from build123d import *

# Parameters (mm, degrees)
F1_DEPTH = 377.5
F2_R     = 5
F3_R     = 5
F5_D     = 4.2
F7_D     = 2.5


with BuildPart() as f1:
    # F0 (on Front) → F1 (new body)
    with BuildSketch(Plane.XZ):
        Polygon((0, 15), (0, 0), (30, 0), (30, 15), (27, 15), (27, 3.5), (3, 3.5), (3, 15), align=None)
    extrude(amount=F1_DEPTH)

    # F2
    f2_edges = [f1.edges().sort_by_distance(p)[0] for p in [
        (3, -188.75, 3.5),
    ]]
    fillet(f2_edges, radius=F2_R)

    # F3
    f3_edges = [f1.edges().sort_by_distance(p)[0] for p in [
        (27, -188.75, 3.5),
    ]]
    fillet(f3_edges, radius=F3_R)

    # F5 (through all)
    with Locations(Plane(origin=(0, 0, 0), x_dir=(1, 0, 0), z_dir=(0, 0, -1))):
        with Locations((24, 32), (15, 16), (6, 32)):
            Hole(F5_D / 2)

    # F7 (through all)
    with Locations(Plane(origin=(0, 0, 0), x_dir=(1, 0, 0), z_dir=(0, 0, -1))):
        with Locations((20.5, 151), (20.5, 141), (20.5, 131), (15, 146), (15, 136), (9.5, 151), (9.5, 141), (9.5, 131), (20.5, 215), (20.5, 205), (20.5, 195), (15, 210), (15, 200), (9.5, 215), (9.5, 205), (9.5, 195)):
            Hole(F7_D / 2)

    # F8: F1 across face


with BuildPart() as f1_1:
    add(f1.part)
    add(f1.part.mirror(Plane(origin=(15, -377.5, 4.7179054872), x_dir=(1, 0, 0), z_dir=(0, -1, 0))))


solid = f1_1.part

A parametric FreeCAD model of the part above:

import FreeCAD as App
import Part
import Sketcher
from FreeCAD import Vector


def edges_at(feature, points):
    """Names of the edges that pass closest to the given points."""
    edges = feature.Shape.Edges
    near = lambda p: min(range(len(edges)), key=lambda i: edges[i].distToShape(Part.Vertex(*p))[0])
    return sorted({f"Edge{near(p) + 1}" for p in points})


def add_polygon(sketch, points):
    """Adds a closed chain of lines whose ends are joined by coincident constraints."""
    first, n = sketch.GeometryCount, len(points)
    for a, b in zip(points, points[1:] + points[:1]):
        sketch.addGeometry(Part.LineSegment(App.Vector(*a, 0), App.Vector(*b, 0)), False)
    for i in range(n):
        sketch.addConstraint(Sketcher.Constraint("Coincident", first + i, 2, first + (i + 1) % n, 1))

doc = App.newDocument("Part")
body = doc.addObject("PartDesign::Body", "Body")

# Sketch on XZ plane
sketch1 = body.newObject("Sketcher::SketchObject", "Sketch")
sketch1.AttachmentSupport = (doc.getObject("XZ_Plane"), [""])
sketch1.MapMode = "FlatFace"
add_polygon(sketch1, [(0, 15), (0, 0), (30, 0), (30, 15), (27, 15), (27, 3.5), (3, 3.5), (3, 15)])  # lines 0-7
sketch1.addConstraint(Sketcher.Constraint("Vertical", 0))
sketch1.addConstraint(Sketcher.Constraint("Horizontal", 1))
sketch1.addConstraint(Sketcher.Constraint("Vertical", 2))
sketch1.addConstraint(Sketcher.Constraint("Horizontal", 3))
sketch1.addConstraint(Sketcher.Constraint("Vertical", 4))
sketch1.addConstraint(Sketcher.Constraint("Horizontal", 5))
sketch1.addConstraint(Sketcher.Constraint("Vertical", 6))
sketch1.addConstraint(Sketcher.Constraint("Horizontal", 7))
sketch1.addConstraint(Sketcher.Constraint("Coincident", 0, 2, -1, 1))
sketch1.addConstraint(Sketcher.Constraint("Horizontal", 3, 2, 6, 2))
sketch1.addConstraint(Sketcher.Constraint("Equal", 3, 7))
sketch1.addConstraint(Sketcher.Constraint("DistanceX", 1, 1, 1, 2, 30.0))
sketch1.addConstraint(Sketcher.Constraint("DistanceX", 3, 2, 3, 1, 3.0))
sketch1.addConstraint(Sketcher.Constraint("DistanceY", 0, 2, 0, 1, 15.0))
sketch1.addConstraint(Sketcher.Constraint("DistanceY", 4, 2, 4, 1, 11.5))
pad1 = body.newObject("PartDesign::Pad", "Pad")
pad1.Profile = sketch1
pad1.Length = 377.5
doc.recompute()

fillet = body.newObject("PartDesign::Fillet", "Fillet")
fillet.Base = (pad1, edges_at(pad1, [(3, -188.75, 3.5)]))
fillet.Radius = 5
doc.recompute()

fillet2 = body.newObject("PartDesign::Fillet", "Fillet001")
fillet2.Base = (fillet, edges_at(fillet, [(27, -188.75, 3.5)]))
fillet2.Radius = 5

# Sketch on XY plane
sketch2 = body.newObject("Sketcher::SketchObject", "Sketch001")
sketch2.AttachmentSupport = (doc.getObject("XY_Plane"), [""])
sketch2.MapMode = "FlatFace"
sketch2.addGeometry(Part.Circle(Vector(24, -32, 0), Vector(0, 0, 1), 2.1), False)
sketch2.addGeometry(Part.Circle(Vector(15, -16, 0), Vector(0, 0, 1), 2.1), False)
sketch2.addGeometry(Part.Circle(Vector(6, -32, 0), Vector(0, 0, 1), 2.1), False)
sketch2.addConstraint(Sketcher.Constraint("Equal", 0, 1))
sketch2.addConstraint(Sketcher.Constraint("Equal", 1, 2))
sketch2.addConstraint(Sketcher.Constraint("Horizontal", 0, 3, 2, 3))
sketch2.addConstraint(Sketcher.Constraint("Diameter", 0, 4.2))
sketch2.addConstraint(Sketcher.Constraint("DistanceX", -1, 1, 0, 3, 24.0))
sketch2.addConstraint(Sketcher.Constraint("DistanceY", 0, 3, -1, 1, 32.0))
sketch2.addConstraint(Sketcher.Constraint("DistanceX", -1, 1, 1, 3, 15.0))
sketch2.addConstraint(Sketcher.Constraint("DistanceY", 1, 3, -1, 1, 16.0))
sketch2.addConstraint(Sketcher.Constraint("DistanceX", -1, 1, 2, 3, 6.0))
doc.recompute()
hole = body.newObject("PartDesign::Hole", "Hole")
hole.Profile = sketch2
hole.ThreadType = "None"
hole.Diameter = 4.2
hole.DepthType = "ThroughAll"
hole.Reversed = True

# Sketch on XY plane
sketch3 = body.newObject("Sketcher::SketchObject", "Sketch002")
sketch3.AttachmentSupport = (doc.getObject("XY_Plane"), [""])
sketch3.MapMode = "FlatFace"
sketch3.addGeometry(Part.Circle(Vector(20.5, -151, 0), Vector(0, 0, 1), 1.2), False)
sketch3.addGeometry(Part.Circle(Vector(20.5, -141, 0), Vector(0, 0, 1), 1.2), False)
sketch3.addGeometry(Part.Circle(Vector(20.5, -131, 0), Vector(0, 0, 1), 1.2), False)
sketch3.addGeometry(Part.Circle(Vector(15, -146, 0), Vector(0, 0, 1), 1.2), False)
sketch3.addGeometry(Part.Circle(Vector(15, -136, 0), Vector(0, 0, 1), 1.2), False)
sketch3.addGeometry(Part.Circle(Vector(9.5, -151, 0), Vector(0, 0, 1), 1.2), False)
sketch3.addGeometry(Part.Circle(Vector(9.5, -141, 0), Vector(0, 0, 1), 1.2), False)
sketch3.addGeometry(Part.Circle(Vector(9.5, -131, 0), Vector(0, 0, 1), 1.2), False)
sketch3.addGeometry(Part.Circle(Vector(20.5, -215, 0), Vector(0, 0, 1), 1.2), False)
sketch3.addGeometry(Part.Circle(Vector(20.5, -205, 0), Vector(0, 0, 1), 1.2), False)
sketch3.addGeometry(Part.Circle(Vector(20.5, -195, 0), Vector(0, 0, 1), 1.2), False)
sketch3.addGeometry(Part.Circle(Vector(15, -210, 0), Vector(0, 0, 1), 1.2), False)
sketch3.addGeometry(Part.Circle(Vector(15, -200, 0), Vector(0, 0, 1), 1.2), False)
sketch3.addGeometry(Part.Circle(Vector(9.5, -215, 0), Vector(0, 0, 1), 1.2), False)
sketch3.addGeometry(Part.Circle(Vector(9.5, -205, 0), Vector(0, 0, 1), 1.2), False)
sketch3.addGeometry(Part.Circle(Vector(9.5, -195, 0), Vector(0, 0, 1), 1.2), False)
sketch3.addConstraint(Sketcher.Constraint("Equal", 0, 1))
sketch3.addConstraint(Sketcher.Constraint("Equal", 1, 2))
sketch3.addConstraint(Sketcher.Constraint("Equal", 2, 3))
sketch3.addConstraint(Sketcher.Constraint("Equal", 3, 4))
sketch3.addConstraint(Sketcher.Constraint("Equal", 4, 5))
sketch3.addConstraint(Sketcher.Constraint("Equal", 5, 6))
sketch3.addConstraint(Sketcher.Constraint("Equal", 6, 7))
sketch3.addConstraint(Sketcher.Constraint("Equal", 7, 8))
sketch3.addConstraint(Sketcher.Constraint("Equal", 8, 9))
sketch3.addConstraint(Sketcher.Constraint("Equal", 9, 10))
sketch3.addConstraint(Sketcher.Constraint("Equal", 10, 11))
sketch3.addConstraint(Sketcher.Constraint("Equal", 11, 12))
sketch3.addConstraint(Sketcher.Constraint("Equal", 12, 13))
sketch3.addConstraint(Sketcher.Constraint("Equal", 13, 14))
sketch3.addConstraint(Sketcher.Constraint("Equal", 14, 15))
sketch3.addConstraint(Sketcher.Constraint("Horizontal", 0, 3, 5, 3))
sketch3.addConstraint(Sketcher.Constraint("Horizontal", 1, 3, 6, 3))
sketch3.addConstraint(Sketcher.Constraint("Horizontal", 2, 3, 7, 3))
sketch3.addConstraint(Sketcher.Constraint("Horizontal", 8, 3, 13, 3))
sketch3.addConstraint(Sketcher.Constraint("Horizontal", 9, 3, 14, 3))
sketch3.addConstraint(Sketcher.Constraint("Horizontal", 10, 3, 15, 3))
sketch3.addConstraint(Sketcher.Constraint("Vertical", 0, 3, 1, 3))
sketch3.addConstraint(Sketcher.Constraint("Vertical", 1, 3, 2, 3))
sketch3.addConstraint(Sketcher.Constraint("Vertical", 3, 3, 4, 3))
sketch3.addConstraint(Sketcher.Constraint("Vertical", 5, 3, 6, 3))
sketch3.addConstraint(Sketcher.Constraint("Vertical", 6, 3, 7, 3))
sketch3.addConstraint(Sketcher.Constraint("Vertical", 2, 3, 8, 3))
sketch3.addConstraint(Sketcher.Constraint("Vertical", 8, 3, 9, 3))
sketch3.addConstraint(Sketcher.Constraint("Vertical", 9, 3, 10, 3))
sketch3.addConstraint(Sketcher.Constraint("Vertical", 4, 3, 11, 3))
sketch3.addConstraint(Sketcher.Constraint("Vertical", 11, 3, 12, 3))
sketch3.addConstraint(Sketcher.Constraint("Vertical", 7, 3, 13, 3))
sketch3.addConstraint(Sketcher.Constraint("Vertical", 13, 3, 14, 3))
sketch3.addConstraint(Sketcher.Constraint("Vertical", 14, 3, 15, 3))
sketch3.addConstraint(Sketcher.Constraint("Diameter", 0, 2.5))
sketch3.addConstraint(Sketcher.Constraint("DistanceY", 0, 3, -1, 1, 151.0))
sketch3.addConstraint(Sketcher.Constraint("DistanceY", 1, 3, -1, 1, 141.0))
sketch3.addConstraint(Sketcher.Constraint("DistanceY", 2, 3, -1, 1, 131.0))
sketch3.addConstraint(Sketcher.Constraint("DistanceX", -1, 1, 3, 3, 15.0))
sketch3.addConstraint(Sketcher.Constraint("DistanceY", 3, 3, -1, 1, 146.0))
sketch3.addConstraint(Sketcher.Constraint("DistanceY", 4, 3, -1, 1, 136.0))
sketch3.addConstraint(Sketcher.Constraint("DistanceY", 8, 3, -1, 1, 215.0))
sketch3.addConstraint(Sketcher.Constraint("DistanceY", 9, 3, -1, 1, 205.0))
sketch3.addConstraint(Sketcher.Constraint("DistanceY", 10, 3, -1, 1, 195.0))
sketch3.addConstraint(Sketcher.Constraint("DistanceY", 11, 3, -1, 1, 210.0))
sketch3.addConstraint(Sketcher.Constraint("DistanceY", 12, 3, -1, 1, 200.0))
sketch3.addConstraint(Sketcher.Constraint("DistanceX", 5, 3, 0, 3, 11.0))
sketch3.addConstraint(Sketcher.Constraint("DistanceX", -1, 1, 0, 3, 20.5))
doc.recompute()
hole2 = body.newObject("PartDesign::Hole", "Hole001")
hole2.Profile = sketch3
hole2.ThreadType = "None"
hole2.Diameter = 2.5
hole2.DepthType = "ThroughAll"
hole2.Reversed = True
body2 = doc.addObject("PartDesign::Body", "Body001")
doc.recompute()

body2.BaseFeature = body
doc.recompute()

mirroring = doc.addObject("Part::Mirroring", "Mirroring")
mirroring.Source = body
mirroring.Base = Vector(15, -377.5, 4.717905)
mirroring.Normal = Vector(0, -1, 0)
body3 = doc.addObject("PartDesign::Body", "Body002")
body3.BaseFeature = mirroring
boolean = body2.newObject("PartDesign::Boolean", "Boolean")
boolean.Type = "Fuse"
boolean.addObjects([body3])
doc.recompute()
mirroring.Visibility = False

doc.recompute()
